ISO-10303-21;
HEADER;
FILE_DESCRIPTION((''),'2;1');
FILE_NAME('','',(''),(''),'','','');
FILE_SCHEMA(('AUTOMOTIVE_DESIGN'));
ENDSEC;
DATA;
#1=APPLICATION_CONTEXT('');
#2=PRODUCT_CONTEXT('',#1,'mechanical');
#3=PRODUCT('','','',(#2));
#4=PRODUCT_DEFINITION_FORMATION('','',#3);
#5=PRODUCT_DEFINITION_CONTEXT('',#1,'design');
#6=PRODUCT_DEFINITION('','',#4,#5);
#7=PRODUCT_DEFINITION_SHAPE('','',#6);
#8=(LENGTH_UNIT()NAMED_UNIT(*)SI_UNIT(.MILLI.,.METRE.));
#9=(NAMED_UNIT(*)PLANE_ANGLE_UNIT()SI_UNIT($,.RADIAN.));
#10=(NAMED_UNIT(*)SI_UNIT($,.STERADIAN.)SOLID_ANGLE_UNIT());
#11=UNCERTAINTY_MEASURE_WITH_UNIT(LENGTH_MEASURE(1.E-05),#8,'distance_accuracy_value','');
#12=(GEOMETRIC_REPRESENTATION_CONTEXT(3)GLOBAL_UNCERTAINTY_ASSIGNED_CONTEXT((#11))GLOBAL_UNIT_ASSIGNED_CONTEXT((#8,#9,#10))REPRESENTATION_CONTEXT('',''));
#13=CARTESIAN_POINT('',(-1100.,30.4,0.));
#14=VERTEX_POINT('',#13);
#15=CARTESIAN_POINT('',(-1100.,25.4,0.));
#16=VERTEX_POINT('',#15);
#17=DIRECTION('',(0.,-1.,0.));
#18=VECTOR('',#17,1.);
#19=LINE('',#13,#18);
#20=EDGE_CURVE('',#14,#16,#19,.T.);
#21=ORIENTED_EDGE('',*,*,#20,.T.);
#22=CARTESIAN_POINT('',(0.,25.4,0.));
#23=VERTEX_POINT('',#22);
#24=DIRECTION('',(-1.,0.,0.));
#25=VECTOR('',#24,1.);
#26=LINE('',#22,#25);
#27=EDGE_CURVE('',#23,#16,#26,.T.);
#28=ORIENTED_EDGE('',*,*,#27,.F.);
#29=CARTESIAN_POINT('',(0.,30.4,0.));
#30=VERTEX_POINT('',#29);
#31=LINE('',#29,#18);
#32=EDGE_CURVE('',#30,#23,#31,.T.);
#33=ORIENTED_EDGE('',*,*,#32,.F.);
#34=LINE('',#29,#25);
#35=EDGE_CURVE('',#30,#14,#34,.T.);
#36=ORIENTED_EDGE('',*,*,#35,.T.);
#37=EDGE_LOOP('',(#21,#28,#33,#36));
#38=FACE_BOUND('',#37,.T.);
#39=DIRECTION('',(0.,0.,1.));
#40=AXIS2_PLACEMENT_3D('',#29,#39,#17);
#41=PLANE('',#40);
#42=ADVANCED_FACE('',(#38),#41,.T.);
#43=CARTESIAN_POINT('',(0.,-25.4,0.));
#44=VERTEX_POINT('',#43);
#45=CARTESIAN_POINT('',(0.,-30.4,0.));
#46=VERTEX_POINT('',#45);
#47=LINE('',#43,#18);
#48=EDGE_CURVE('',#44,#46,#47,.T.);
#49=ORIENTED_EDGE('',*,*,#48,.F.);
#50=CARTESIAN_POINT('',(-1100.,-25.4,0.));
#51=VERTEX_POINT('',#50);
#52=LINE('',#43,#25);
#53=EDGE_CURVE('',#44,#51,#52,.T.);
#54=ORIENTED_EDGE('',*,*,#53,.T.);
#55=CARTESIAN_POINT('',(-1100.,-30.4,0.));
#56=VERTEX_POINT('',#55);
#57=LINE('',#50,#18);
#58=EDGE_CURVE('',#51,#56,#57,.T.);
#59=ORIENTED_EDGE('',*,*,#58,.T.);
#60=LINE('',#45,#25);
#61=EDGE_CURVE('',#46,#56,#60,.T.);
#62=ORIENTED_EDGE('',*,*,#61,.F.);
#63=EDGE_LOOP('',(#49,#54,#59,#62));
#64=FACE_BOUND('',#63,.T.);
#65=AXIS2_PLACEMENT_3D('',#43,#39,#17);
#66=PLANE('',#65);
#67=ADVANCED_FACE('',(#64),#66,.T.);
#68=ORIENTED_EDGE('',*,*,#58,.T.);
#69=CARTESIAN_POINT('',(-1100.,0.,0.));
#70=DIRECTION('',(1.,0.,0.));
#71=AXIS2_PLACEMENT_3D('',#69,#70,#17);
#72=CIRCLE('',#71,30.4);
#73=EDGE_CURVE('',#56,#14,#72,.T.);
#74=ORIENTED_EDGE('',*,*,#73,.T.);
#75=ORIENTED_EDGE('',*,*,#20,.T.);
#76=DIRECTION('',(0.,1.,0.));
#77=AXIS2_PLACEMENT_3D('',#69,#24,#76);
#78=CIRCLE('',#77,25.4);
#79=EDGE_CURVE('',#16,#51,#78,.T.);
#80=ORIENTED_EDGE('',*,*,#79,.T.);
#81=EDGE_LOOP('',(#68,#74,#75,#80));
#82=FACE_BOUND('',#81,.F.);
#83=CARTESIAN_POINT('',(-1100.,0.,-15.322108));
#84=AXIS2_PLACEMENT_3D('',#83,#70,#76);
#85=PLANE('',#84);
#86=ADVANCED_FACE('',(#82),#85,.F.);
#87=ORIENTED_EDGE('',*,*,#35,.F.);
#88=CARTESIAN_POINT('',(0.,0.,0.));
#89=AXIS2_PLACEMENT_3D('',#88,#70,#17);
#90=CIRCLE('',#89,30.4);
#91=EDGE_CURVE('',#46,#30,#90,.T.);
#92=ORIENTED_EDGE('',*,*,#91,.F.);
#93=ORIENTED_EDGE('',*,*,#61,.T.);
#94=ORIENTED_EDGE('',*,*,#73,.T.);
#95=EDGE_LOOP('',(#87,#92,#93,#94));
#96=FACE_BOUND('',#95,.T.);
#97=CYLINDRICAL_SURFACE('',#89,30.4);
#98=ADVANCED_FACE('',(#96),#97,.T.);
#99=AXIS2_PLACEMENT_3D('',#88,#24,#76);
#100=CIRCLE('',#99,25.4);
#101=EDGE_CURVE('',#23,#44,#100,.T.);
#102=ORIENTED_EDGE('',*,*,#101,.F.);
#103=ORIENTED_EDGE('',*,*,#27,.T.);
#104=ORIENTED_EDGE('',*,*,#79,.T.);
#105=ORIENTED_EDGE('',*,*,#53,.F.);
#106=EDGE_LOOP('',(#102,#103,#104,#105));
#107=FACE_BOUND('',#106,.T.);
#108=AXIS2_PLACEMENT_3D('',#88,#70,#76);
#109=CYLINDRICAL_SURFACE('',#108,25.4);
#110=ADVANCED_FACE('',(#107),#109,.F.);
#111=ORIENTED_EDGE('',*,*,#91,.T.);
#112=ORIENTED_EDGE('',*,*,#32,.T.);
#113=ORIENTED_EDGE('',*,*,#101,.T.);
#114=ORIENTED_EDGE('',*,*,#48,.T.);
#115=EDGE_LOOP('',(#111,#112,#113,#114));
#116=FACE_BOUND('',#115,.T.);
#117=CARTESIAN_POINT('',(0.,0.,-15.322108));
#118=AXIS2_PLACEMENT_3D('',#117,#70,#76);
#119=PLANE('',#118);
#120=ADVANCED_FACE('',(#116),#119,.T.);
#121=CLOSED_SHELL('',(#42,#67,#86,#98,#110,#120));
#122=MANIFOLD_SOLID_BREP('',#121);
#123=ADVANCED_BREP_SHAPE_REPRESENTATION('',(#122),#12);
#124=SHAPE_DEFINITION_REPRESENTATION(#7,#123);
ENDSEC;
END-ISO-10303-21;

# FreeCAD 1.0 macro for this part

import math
import FreeCAD as App
import Part
import Sketcher
Q = App.Units.Quantity

doc = App.newDocument("Part")
body = doc.addObject("PartDesign::Body", "Body")

sketch1 = body.newObject("Sketcher::SketchObject", "Sketch")
sketch1.AttachmentSupport = (doc.getObject("YZ_Plane"), [""])
sketch1.MapMode = "FlatFace"
sketch1.addGeometry([
    Part.ArcOfCircle(Part.Circle(App.Vector(0, 0, 0), App.Vector(0, 0, 1), 25), math.radians(180), math.radians(360)),
    Part.LineSegment(App.Vector(-25, 0, 0), App.Vector(-30, 0, 0)),
    Part.ArcOfCircle(Part.Circle(App.Vector(0, 0, 0), App.Vector(0, 0, 1), 30), math.radians(180), math.radians(360)),
    Part.LineSegment(App.Vector(30, 0, 0), App.Vector(25, 0, 0)),
], False)
sketch1.addConstraint([
    Sketcher.Constraint("Coincident", 0, 1, 1, 1),
    Sketcher.Constraint("Coincident", 1, 2, 2, 1),
    Sketcher.Constraint("Coincident", 2, 2, 3, 1),
    Sketcher.Constraint("Coincident", 3, 2, 0, 2),
    Sketcher.Constraint("Horizontal", 1),
    Sketcher.Constraint("Horizontal", 3),
    Sketcher.Constraint("Coincident", 0, 3, -1, 1),
    Sketcher.Constraint("Coincident", 2, 3, -1, 1),
    Sketcher.Constraint("PointOnObject", 0, 1, -1),
    Sketcher.Constraint("PointOnObject", 2, 2, -1),
    Sketcher.Constraint("Radius", 0, Q("25.4 mm")),
    Sketcher.Constraint("Radius", 2, Q("30.4 mm")),
])
pad1 = body.newObject("PartDesign::Pad", "Pad")
pad1.Profile = sketch1
pad1.Length = 1100
pad1.Reversed = True

doc.recompute()
